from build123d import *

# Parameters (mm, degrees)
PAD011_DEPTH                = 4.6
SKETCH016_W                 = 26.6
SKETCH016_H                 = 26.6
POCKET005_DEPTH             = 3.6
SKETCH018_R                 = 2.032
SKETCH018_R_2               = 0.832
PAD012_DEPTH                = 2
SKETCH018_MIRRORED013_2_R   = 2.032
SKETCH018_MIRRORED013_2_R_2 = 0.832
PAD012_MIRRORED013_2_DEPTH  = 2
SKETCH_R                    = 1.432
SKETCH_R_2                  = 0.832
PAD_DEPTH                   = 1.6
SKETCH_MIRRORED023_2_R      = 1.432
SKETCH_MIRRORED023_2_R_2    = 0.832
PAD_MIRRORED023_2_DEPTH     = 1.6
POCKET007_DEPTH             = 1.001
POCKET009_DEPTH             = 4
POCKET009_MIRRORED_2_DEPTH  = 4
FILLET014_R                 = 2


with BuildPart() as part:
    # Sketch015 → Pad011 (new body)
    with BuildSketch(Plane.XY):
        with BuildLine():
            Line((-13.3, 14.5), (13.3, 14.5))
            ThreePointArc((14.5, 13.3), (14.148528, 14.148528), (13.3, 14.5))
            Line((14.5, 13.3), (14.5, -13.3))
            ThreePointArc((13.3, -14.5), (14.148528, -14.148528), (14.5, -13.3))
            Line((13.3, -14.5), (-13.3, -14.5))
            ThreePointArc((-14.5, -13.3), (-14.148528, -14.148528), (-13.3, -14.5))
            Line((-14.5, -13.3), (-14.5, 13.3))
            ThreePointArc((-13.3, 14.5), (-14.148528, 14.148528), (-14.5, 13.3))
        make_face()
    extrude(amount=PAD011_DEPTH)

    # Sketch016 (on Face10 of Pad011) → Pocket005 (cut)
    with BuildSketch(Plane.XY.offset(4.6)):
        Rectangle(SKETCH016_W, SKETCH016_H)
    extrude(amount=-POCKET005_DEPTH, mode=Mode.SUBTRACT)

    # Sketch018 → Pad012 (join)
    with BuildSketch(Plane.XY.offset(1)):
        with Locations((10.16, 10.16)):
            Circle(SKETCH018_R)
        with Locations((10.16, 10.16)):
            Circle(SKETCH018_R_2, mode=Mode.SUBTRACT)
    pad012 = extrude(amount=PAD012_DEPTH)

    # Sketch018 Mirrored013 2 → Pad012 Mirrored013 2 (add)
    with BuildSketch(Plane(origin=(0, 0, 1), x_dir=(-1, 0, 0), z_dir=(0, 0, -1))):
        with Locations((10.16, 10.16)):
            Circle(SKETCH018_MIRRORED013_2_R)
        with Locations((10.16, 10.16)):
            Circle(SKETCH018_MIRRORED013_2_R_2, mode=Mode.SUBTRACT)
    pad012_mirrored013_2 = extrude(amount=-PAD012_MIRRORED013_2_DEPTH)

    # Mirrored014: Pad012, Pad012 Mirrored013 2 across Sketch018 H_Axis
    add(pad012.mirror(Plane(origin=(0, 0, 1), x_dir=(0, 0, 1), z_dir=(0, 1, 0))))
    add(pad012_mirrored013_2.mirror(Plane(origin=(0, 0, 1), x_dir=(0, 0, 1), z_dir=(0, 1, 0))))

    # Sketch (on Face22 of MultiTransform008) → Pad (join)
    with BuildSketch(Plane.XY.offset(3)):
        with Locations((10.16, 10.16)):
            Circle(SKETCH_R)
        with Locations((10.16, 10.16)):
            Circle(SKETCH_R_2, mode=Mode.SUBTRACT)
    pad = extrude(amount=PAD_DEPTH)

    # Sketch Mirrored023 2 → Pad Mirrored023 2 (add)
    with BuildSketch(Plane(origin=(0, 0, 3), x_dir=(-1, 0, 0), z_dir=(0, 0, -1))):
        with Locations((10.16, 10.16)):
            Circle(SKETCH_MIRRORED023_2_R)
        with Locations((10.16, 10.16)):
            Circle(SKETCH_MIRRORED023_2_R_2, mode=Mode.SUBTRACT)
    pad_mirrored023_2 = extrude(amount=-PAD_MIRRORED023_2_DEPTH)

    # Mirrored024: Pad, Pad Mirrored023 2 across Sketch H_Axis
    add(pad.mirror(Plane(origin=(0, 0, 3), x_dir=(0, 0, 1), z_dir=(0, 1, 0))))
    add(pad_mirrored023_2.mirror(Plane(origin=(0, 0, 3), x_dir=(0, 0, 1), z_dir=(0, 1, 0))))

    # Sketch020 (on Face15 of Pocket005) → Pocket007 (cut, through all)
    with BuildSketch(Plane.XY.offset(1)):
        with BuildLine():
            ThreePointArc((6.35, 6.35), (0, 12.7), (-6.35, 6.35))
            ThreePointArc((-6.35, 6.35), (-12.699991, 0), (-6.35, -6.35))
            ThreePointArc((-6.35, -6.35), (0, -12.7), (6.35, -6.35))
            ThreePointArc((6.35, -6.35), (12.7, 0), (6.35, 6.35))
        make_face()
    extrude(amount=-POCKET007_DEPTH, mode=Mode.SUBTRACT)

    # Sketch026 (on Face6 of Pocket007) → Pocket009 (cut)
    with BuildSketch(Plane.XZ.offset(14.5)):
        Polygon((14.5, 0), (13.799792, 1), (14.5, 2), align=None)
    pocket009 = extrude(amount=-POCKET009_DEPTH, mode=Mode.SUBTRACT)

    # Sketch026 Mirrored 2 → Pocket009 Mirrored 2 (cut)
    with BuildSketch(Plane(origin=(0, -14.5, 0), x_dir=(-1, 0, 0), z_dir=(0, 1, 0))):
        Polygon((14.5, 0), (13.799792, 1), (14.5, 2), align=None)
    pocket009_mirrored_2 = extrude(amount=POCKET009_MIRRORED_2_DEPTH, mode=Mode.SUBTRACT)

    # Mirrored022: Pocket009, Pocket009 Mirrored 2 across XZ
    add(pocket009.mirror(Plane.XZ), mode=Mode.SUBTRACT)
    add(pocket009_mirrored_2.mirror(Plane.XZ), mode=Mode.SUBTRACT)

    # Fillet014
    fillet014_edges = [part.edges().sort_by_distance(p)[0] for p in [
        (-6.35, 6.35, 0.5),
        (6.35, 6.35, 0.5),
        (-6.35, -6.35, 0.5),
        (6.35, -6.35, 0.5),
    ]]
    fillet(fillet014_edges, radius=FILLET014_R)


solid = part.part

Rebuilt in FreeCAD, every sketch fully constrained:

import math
import FreeCAD as App
import Part
import Sketcher
from FreeCAD import Vector
Q = App.Units.Quantity


def edges_at(feature, points):
    """Names of the edges that pass closest to the given points."""
    edges = feature.Shape.Edges
    near = lambda p: min(range(len(edges)), key=lambda i: edges[i].distToShape(Part.Vertex(*p))[0])
    return sorted({f"Edge{near(p) + 1}" for p in points})

doc = App.newDocument("Part")
params = doc.addObject("Spreadsheet::Sheet", "Params")
for row, (alias, value) in enumerate([
    ("sketch1_radius", "1.2 mm"),
    ("sketch1_width", "26.6 mm"),
    ("pad1_length", "4.6 mm"),
    ("sketch2_width", "26.6 mm"),
    ("pocket1_length", "3.6 mm"),
    ("pad2_length", "2 mm"),
    ("pad3_length", "2 mm"),
    ("pad4_length", "1.6 mm"),
    ("pad5_length", "1.6 mm"),
    ("sketch7_radius", "6.35 mm"),
    ("sketch8_height", "2 mm"),
    ("pocket3_length", "4 mm"),
    ("sketch9_height", "2 mm"),
    ("pocket4_length", "4 mm"),
    ("fillet_radius", "2 mm"),
], start=1):
    params.set(f"A{row}", alias)
    params.set(f"B{row}", "=" + value)
    params.setAlias(f"B{row}", alias)

body = doc.addObject("PartDesign::Body", "Body")

# Sketch on XY plane
sketch1 = doc.addObject("Sketcher::SketchObject", "Sketch")
body.addObject(sketch1)
sketch1.AttachmentSupport = (doc.XY_Plane, [""])
sketch1.MapMode = "FlatFace"
sketch1.addGeometry(Part.LineSegment(Vector(13.3, 14.5, 0), Vector(-13.3, 14.5, 0)), False)
sketch1.addGeometry(Part.ArcOfCircle(Part.Circle(Vector(-13.3, 13.3, 0), Vector(0, 0, 1), 1.2), math.radians(90.000022), math.radians(179.999978)), False)
sketch1.addGeometry(Part.LineSegment(Vector(-14.5, 13.3, 0), Vector(-14.5, -13.3, 0)), False)
sketch1.addGeometry(Part.ArcOfCircle(Part.Circle(Vector(-13.3, -13.3, 0), Vector(0, 0, 1), 1.2), math.radians(-179.999978), math.radians(-90.000022)), False)
sketch1.addGeometry(Part.LineSegment(Vector(-13.3, -14.5, 0), Vector(13.3, -14.5, 0)), False)
sketch1.addGeometry(Part.ArcOfCircle(Part.Circle(Vector(13.3, -13.3, 0), Vector(0, 0, 1), 1.2), math.radians(-89.999978), math.radians(-0.000022)), False)
sketch1.addGeometry(Part.LineSegment(Vector(14.5, -13.3, 0), Vector(14.5, 13.3, 0)), False)
sketch1.addGeometry(Part.ArcOfCircle(Part.Circle(Vector(13.3, 13.3, 0), Vector(0, 0, 1), 1.2), math.radians(0.000022), math.radians(89.999978)), False)
sketch1.addConstraint(Sketcher.Constraint("Tangent", 0, 2, 1, 1))
sketch1.addConstraint(Sketcher.Constraint("Tangent", 1, 2, 2, 1))
sketch1.addConstraint(Sketcher.Constraint("Tangent", 2, 2, 3, 1))
sketch1.addConstraint(Sketcher.Constraint("Tangent", 3, 2, 4, 1))
sketch1.addConstraint(Sketcher.Constraint("Tangent", 4, 2, 5, 1))
sketch1.addConstraint(Sketcher.Constraint("Tangent", 5, 2, 6, 1))
sketch1.addConstraint(Sketcher.Constraint("Tangent", 6, 2, 7, 1))
sketch1.addConstraint(Sketcher.Constraint("Tangent", 7, 2, 0, 1))
sketch1.addConstraint(Sketcher.Constraint("Horizontal", 0))
sketch1.addConstraint(Sketcher.Constraint("Vertical", 2))
sketch1.addConstraint(Sketcher.Constraint("Horizontal", 4))
sketch1.addConstraint(Sketcher.Constraint("Vertical", 6))
sketch1.addConstraint(Sketcher.Constraint("Equal", 1, 3))
sketch1.addConstraint(Sketcher.Constraint("Equal", 3, 5))
sketch1.addConstraint(Sketcher.Constraint("Equal", 5, 7))
sketch1.addConstraint(Sketcher.Constraint("Symmetric", 1, 3, 5, 3, -1, 1))
sketch1.addConstraint(Sketcher.Constraint("Equal", 4, 2))
sketch1.addConstraint(Sketcher.Constraint("Radius", 1, Q("1.2 mm")))
sketch1.addConstraint(Sketcher.Constraint("DistanceX", 0, 2, 0, 1, Q("26.6 mm")))
sketch1.setExpression("Constraints[17]", "Params.sketch1_radius")
sketch1.setExpression("Constraints[18]", "Params.sketch1_width")
pad1 = doc.addObject("PartDesign::Pad", "Pad")
body.addObject(pad1)
pad1.Profile = sketch1
pad1.setExpression("Length", "Params.pad1_length")

# Sketch on XY plane
sketch2 = doc.addObject("Sketcher::SketchObject", "Sketch001")
body.addObject(sketch2)
sketch2.AttachmentSupport = (doc.XY_Plane, [""])
sketch2.MapMode = "FlatFace"
sketch2.AttachmentOffset = App.Placement(Vector(0, 0, 4.6), App.Rotation())
sketch2.addGeometry(Part.LineSegment(Vector(-13.3, 13.3, 0), Vector(-13.3, -13.3, 0)), False)
sketch2.addGeometry(Part.LineSegment(Vector(-13.3, -13.3, 0), Vector(13.3, -13.3, 0)), False)
sketch2.addGeometry(Part.LineSegment(Vector(13.3, -13.3, 0), Vector(13.3, 13.3, 0)), False)
sketch2.addGeometry(Part.LineSegment(Vector(13.3, 13.3, 0), Vector(-13.3, 13.3, 0)), False)
sketch2.addConstraint(Sketcher.Constraint("Coincident", 0, 2, 1, 1))
sketch2.addConstraint(Sketcher.Constraint("Coincident", 1, 2, 2, 1))
sketch2.addConstraint(Sketcher.Constraint("Coincident", 2, 2, 3, 1))
sketch2.addConstraint(Sketcher.Constraint("Coincident", 3, 2, 0, 1))
sketch2.addConstraint(Sketcher.Constraint("Vertical", 0))
sketch2.addConstraint(Sketcher.Constraint("Horizontal", 1))
sketch2.addConstraint(Sketcher.Constraint("Vertical", 2))
sketch2.addConstraint(Sketcher.Constraint("Horizontal", 3))
sketch2.addConstraint(Sketcher.Constraint("Symmetric", 0, 2, 2, 2, -1, 1))
sketch2.addConstraint(Sketcher.Constraint("Equal", 3, 0))
sketch2.addConstraint(Sketcher.Constraint("DistanceX", 1, 1, 1, 2, Q("26.6 mm")))
sketch2.setExpression("Constraints[10]", "Params.sketch2_width")
pocket1 = doc.addObject("PartDesign::Pocket", "Pocket")
body.addObject(pocket1)
pocket1.Profile = sketch2
pocket1.setExpression("Length", "Params.pocket1_length")

# Sketch on XY plane
sketch3 = doc.addObject("Sketcher::SketchObject", "Sketch002")
body.addObject(sketch3)
sketch3.AttachmentSupport = (doc.XY_Plane, [""])
sketch3.MapMode = "FlatFace"
sketch3.AttachmentOffset = App.Placement(Vector(0, 0, 1), App.Rotation())
sketch3.addGeometry(Part.Circle(Vector(10.16, 10.16, 0), Vector(0, 0, 1), 2.032), False)
sketch3.addGeometry(Part.Circle(Vector(10.16, 10.16, 0), Vector(0, 0, 1), 0.832), False)
sketch3.addConstraint(Sketcher.Constraint("Coincident", 1, 3, 0, 3))
sketch3.addConstraint(Sketcher.Constraint("Diameter", 0, Q("4.064 mm")))
sketch3.addConstraint(Sketcher.Constraint("Diameter", 1, Q("1.664 mm")))
sketch3.addConstraint(Sketcher.Constraint("DistanceX", -1, 1, 0, 3, Q("10.16 mm")))
sketch3.addConstraint(Sketcher.Constraint("DistanceY", -1, 1, 0, 3, Q("10.16 mm")))
pad2 = doc.addObject("PartDesign::Pad", "Pad001")
body.addObject(pad2)
pad2.Profile = sketch3
pad2.setExpression("Length", "Params.pad2_length")

# Sketch on XY plane
sketch4 = doc.addObject("Sketcher::SketchObject", "Sketch003")
body.addObject(sketch4)
sketch4.AttachmentSupport = (doc.XY_Plane, [""])
sketch4.MapMode = "FlatFace"
sketch4.AttachmentOffset = App.Placement(Vector(0, 0, 1), App.Rotation())
sketch4.addGeometry(Part.Circle(Vector(-10.16, 10.16, 0), Vector(0, 0, 1), 2.032), False)
sketch4.addGeometry(Part.Circle(Vector(-10.16, 10.16, 0), Vector(0, 0, 1), 0.832), False)
sketch4.addConstraint(Sketcher.Constraint("Coincident", 1, 3, 0, 3))
sketch4.addConstraint(Sketcher.Constraint("Diameter", 0, Q("4.064 mm")))
sketch4.addConstraint(Sketcher.Constraint("Diameter", 1, Q("1.664 mm")))
sketch4.addConstraint(Sketcher.Constraint("DistanceX", 0, 3, -1, 1, Q("10.16 mm")))
sketch4.addConstraint(Sketcher.Constraint("DistanceY", -1, 1, 0, 3, Q("10.16 mm")))
pad3 = doc.addObject("PartDesign::Pad", "Pad002")
body.addObject(pad3)
pad3.Profile = sketch4
pad3.setExpression("Length", "Params.pad3_length")
doc.recompute()

mirrored = doc.addObject("PartDesign::Mirrored", "Mirrored")
body.addObject(mirrored)
mirrored.Originals = [pad2, pad3]
mirrored.MirrorPlane = (doc.XZ_Plane, [""])
body.Tip = mirrored

# Sketch on XY plane
sketch5 = doc.addObject("Sketcher::SketchObject", "Sketch004")
body.addObject(sketch5)
sketch5.AttachmentSupport = (doc.XY_Plane, [""])
sketch5.MapMode = "FlatFace"
sketch5.AttachmentOffset = App.Placement(Vector(0, 0, 3), App.Rotation())
sketch5.addGeometry(Part.Circle(Vector(10.16, 10.16, 0), Vector(0, 0, 1), 1.432), False)
sketch5.addGeometry(Part.Circle(Vector(10.16, 10.16, 0), Vector(0, 0, 1), 0.832), False)
sketch5.addConstraint(Sketcher.Constraint("Coincident", 1, 3, 0, 3))
sketch5.addConstraint(Sketcher.Constraint("Diameter", 0, Q("2.864 mm")))
sketch5.addConstraint(Sketcher.Constraint("Diameter", 1, Q("1.664 mm")))
sketch5.addConstraint(Sketcher.Constraint("DistanceX", -1, 1, 0, 3, Q("10.16 mm")))
sketch5.addConstraint(Sketcher.Constraint("DistanceY", -1, 1, 0, 3, Q("10.16 mm")))
pad4 = doc.addObject("PartDesign::Pad", "Pad003")
body.addObject(pad4)
pad4.Profile = sketch5
pad4.setExpression("Length", "Params.pad4_length")

# Sketch on XY plane
sketch6 = doc.addObject("Sketcher::SketchObject", "Sketch005")
body.addObject(sketch6)
sketch6.AttachmentSupport = (doc.XY_Plane, [""])
sketch6.MapMode = "FlatFace"
sketch6.AttachmentOffset = App.Placement(Vector(0, 0, 3), App.Rotation())
sketch6.addGeometry(Part.Circle(Vector(-10.16, 10.16, 0), Vector(0, 0, 1), 1.432), False)
sketch6.addGeometry(Part.Circle(Vector(-10.16, 10.16, 0), Vector(0, 0, 1), 0.832), False)
sketch6.addConstraint(Sketcher.Constraint("Coincident", 1, 3, 0, 3))
sketch6.addConstraint(Sketcher.Constraint("Diameter", 0, Q("2.864 mm")))
sketch6.addConstraint(Sketcher.Constraint("Diameter", 1, Q("1.664 mm")))
sketch6.addConstraint(Sketcher.Constraint("DistanceX", 0, 3, -1, 1, Q("10.16 mm")))
sketch6.addConstraint(Sketcher.Constraint("DistanceY", -1, 1, 0, 3, Q("10.16 mm")))
pad5 = doc.addObject("PartDesign::Pad", "Pad004")
body.addObject(pad5)
pad5.Profile = sketch6
pad5.setExpression("Length", "Params.pad5_length")
doc.recompute()

mirrored2 = doc.addObject("PartDesign::Mirrored", "Mirrored001")
body.addObject(mirrored2)
mirrored2.Originals = [pad4, pad5]
mirrored2.MirrorPlane = (doc.XZ_Plane, [""])
body.Tip = mirrored2

# Sketch on XY plane
sketch7 = doc.addObject("Sketcher::SketchObject", "Sketch006")
body.addObject(sketch7)
sketch7.AttachmentSupport = (doc.XY_Plane, [""])
sketch7.MapMode = "FlatFace"
sketch7.AttachmentOffset = App.Placement(Vector(0, 0, 1), App.Rotation())
sketch7.addGeometry(Part.ArcOfCircle(Part.Circle(Vector(0, 6.35, 0), Vector(0, 0, 1), 6.35), math.radians(0), math.radians(180)), False)
sketch7.addGeometry(Part.ArcOfCircle(Part.Circle(Vector(-6.349991, 0, 0), Vector(0, 0, 1), 6.35), math.radians(90.000081), math.radians(269.999919)), False)
sketch7.addGeometry(Part.ArcOfCircle(Part.Circle(Vector(0, -6.35, 0), Vector(0, 0, 1), 6.35), math.radians(180), math.radians(360)), False)
sketch7.addGeometry(Part.ArcOfCircle(Part.Circle(Vector(6.35, 0, 0), Vector(0, 0, 1), 6.35), math.radians(-90), math.radians(90)), False)
sketch7.addConstraint(Sketcher.Constraint("Coincident", 0, 2, 1, 1))
sketch7.addConstraint(Sketcher.Constraint("Coincident", 1, 2, 2, 1))
sketch7.addConstraint(Sketcher.Constraint("Coincident", 2, 2, 3, 1))
sketch7.addConstraint(Sketcher.Constraint("Coincident", 3, 2, 0, 1))
sketch7.addConstraint(Sketcher.Constraint("Equal", 0, 1))
sketch7.addConstraint(Sketcher.Constraint("Equal", 1, 2))
sketch7.addConstraint(Sketcher.Constraint("Equal", 2, 3))
sketch7.addConstraint(Sketcher.Constraint("Symmetric", 0, 3, 2, 3, -1, 1))
sketch7.addConstraint(Sketcher.Constraint("Symmetric", 1, 3, 3, 3, -1, 1))
sketch7.addConstraint(Sketcher.Constraint("Symmetric", 1, 2, 2, 2, -2))
sketch7.addConstraint(Sketcher.Constraint("Horizontal", 2, 3, 1, 2))
sketch7.addConstraint(Sketcher.Constraint("Vertical", 3, 3, 2, 2))
sketch7.addConstraint(Sketcher.Constraint("Radius", 0, Q("6.35 mm")))
sketch7.setExpression("Constraints[12]", "Params.sketch7_radius")
pocket2 = doc.addObject("PartDesign::Pocket", "Pocket001")
body.addObject(pocket2)
pocket2.Profile = sketch7
pocket2.Type = "ThroughAll"

# Sketch on XZ plane
sketch8 = doc.addObject("Sketcher::SketchObject", "Sketch007")
body.addObject(sketch8)
sketch8.AttachmentSupport = (doc.XZ_Plane, [""])
sketch8.MapMode = "FlatFace"
sketch8.AttachmentOffset = App.Placement(Vector(0, 0, 14.5), App.Rotation())
sketch8.addGeometry(Part.LineSegment(Vector(13.799792, 1, 0), Vector(14.5, 0, 0)), False)
sketch8.addGeometry(Part.LineSegment(Vector(14.5, 0, 0), Vector(14.5, 2, 0)), False)
sketch8.addGeometry(Part.LineSegment(Vector(14.5, 2, 0), Vector(13.799792, 1, 0)), False)
sketch8.addConstraint(Sketcher.Constraint("Coincident", 0, 2, 1, 1))
sketch8.addConstraint(Sketcher.Constraint("Coincident", 1, 2, 2, 1))
sketch8.addConstraint(Sketcher.Constraint("Coincident", 2, 2, 0, 1))
sketch8.addConstraint(Sketcher.Constraint("Vertical", 1))
sketch8.addConstraint(Sketcher.Constraint("PointOnObject", 0, 2, -1))
sketch8.addConstraint(Sketcher.Constraint("Equal", 0, 2))
sketch8.addConstraint(Sketcher.Constraint("DistanceY", 1, 1, 1, 2, Q("2 mm")))
sketch8.addConstraint(Sketcher.Constraint("Angle", 0, Q("-54.999982 deg")))
sketch8.addConstraint(Sketcher.Constraint("DistanceX", -1, 1, 0, 2, Q("14.5 mm")))
sketch8.setExpression("Constraints[6]", "Params.sketch8_height")
pocket3 = doc.addObject("PartDesign::Pocket", "Pocket002")
body.addObject(pocket3)
pocket3.Profile = sketch8
pocket3.setExpression("Length", "Params.pocket3_length")

# Sketch on XZ plane
sketch9 = doc.addObject("Sketcher::SketchObject", "Sketch008")
body.addObject(sketch9)
sketch9.AttachmentSupport = (doc.XZ_Plane, [""])
sketch9.MapMode = "FlatFace"
sketch9.AttachmentOffset = App.Placement(Vector(0, 0, 14.5), App.Rotation())
sketch9.addGeometry(Part.LineSegment(Vector(-13.799792, 1, 0), Vector(-14.5, 0, 0)), False)
sketch9.addGeometry(Part.LineSegment(Vector(-14.5, 0, 0), Vector(-14.5, 2, 0)), False)
sketch9.addGeometry(Part.LineSegment(Vector(-14.5, 2, 0), Vector(-13.799792, 1, 0)), False)
sketch9.addConstraint(Sketcher.Constraint("Coincident", 0, 2, 1, 1))
sketch9.addConstraint(Sketcher.Constraint("Coincident", 1, 2, 2, 1))
sketch9.addConstraint(Sketcher.Constraint("Coincident", 2, 2, 0, 1))
sketch9.addConstraint(Sketcher.Constraint("Vertical", 1))
sketch9.addConstraint(Sketcher.Constraint("PointOnObject", 0, 2, -1))
sketch9.addConstraint(Sketcher.Constraint("Equal", 0, 2))
sketch9.addConstraint(Sketcher.Constraint("DistanceY", 1, 1, 1, 2, Q("2 mm")))
sketch9.addConstraint(Sketcher.Constraint("Angle", 0, Q("-125.000018 deg")))
sketch9.addConstraint(Sketcher.Constraint("DistanceX", 0, 2, -1, 1, Q("14.5 mm")))
sketch9.setExpression("Constraints[6]", "Params.sketch9_height")
pocket4 = doc.addObject("PartDesign::Pocket", "Pocket003")
body.addObject(pocket4)
pocket4.Profile = sketch9
pocket4.setExpression("Length", "Params.pocket4_length")
doc.recompute()

mirrored3 = doc.addObject("PartDesign::Mirrored", "Mirrored002")
body.addObject(mirrored3)
mirrored3.Originals = [pocket3, pocket4]
mirrored3.MirrorPlane = (doc.XZ_Plane, [""])
body.Tip = mirrored3
doc.recompute()

fillet = doc.addObject("PartDesign::Fillet", "Fillet")
body.addObject(fillet)
fillet.Base = (mirrored3, edges_at(mirrored3, [
    (-6.35, 6.35, 0.5),
    (6.35, 6.35, 0.5),
    (-6.35, -6.35, 0.5),
    (6.35, -6.35, 0.5),
]))
fillet.setExpression("Radius", "Params.fillet_radius")

doc.recompute()
